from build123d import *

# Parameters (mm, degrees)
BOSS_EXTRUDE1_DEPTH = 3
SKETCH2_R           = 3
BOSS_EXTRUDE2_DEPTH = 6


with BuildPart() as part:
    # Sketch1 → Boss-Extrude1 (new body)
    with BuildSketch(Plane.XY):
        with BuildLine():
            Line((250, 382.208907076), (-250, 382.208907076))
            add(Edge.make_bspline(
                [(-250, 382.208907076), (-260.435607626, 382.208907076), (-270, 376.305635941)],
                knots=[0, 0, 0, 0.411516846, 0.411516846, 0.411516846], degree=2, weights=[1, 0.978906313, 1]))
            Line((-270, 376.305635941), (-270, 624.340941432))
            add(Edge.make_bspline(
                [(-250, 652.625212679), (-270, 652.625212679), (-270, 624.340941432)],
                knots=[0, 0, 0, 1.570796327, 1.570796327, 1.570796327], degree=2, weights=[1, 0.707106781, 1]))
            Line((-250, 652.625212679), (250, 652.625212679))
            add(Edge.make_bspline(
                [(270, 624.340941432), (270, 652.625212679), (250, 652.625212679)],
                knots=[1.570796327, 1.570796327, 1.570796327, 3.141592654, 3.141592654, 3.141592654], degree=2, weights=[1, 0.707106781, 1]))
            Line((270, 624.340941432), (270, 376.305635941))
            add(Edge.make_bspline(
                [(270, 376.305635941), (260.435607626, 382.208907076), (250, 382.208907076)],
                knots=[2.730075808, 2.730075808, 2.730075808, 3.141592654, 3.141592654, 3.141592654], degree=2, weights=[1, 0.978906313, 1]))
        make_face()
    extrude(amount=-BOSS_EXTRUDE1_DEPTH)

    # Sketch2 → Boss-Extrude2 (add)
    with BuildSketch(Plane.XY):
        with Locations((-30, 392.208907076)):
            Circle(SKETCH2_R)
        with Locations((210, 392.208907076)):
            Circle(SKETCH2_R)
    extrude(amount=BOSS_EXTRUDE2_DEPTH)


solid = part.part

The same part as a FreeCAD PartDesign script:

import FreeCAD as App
import Part
import Sketcher
from FreeCAD import Vector

doc = App.newDocument("Part")
body = doc.addObject("PartDesign::Body", "Body")

# Sketch on XY plane
sketch1 = body.newObject("Sketcher::SketchObject", "Sketch")
sketch1.AttachmentSupport = (doc.getObject("XY_Plane"), [""])
sketch1.MapMode = "FlatFace"
sketch1.addGeometry(Part.LineSegment(Vector(-250, 382.208907, 0), Vector(250, 382.208907, 0)), False)
sketch1.addGeometry(Part.BSplineCurve([Vector(270, 376.305636, 0), Vector(260.435608, 382.208907, 0), Vector(250, 382.208907, 0)], [3, 3], [2.730075808, 3.141592654], False, 2, [1, 0.978906313, 1], False), False)
sketch1.addGeometry(Part.LineSegment(Vector(270, 376.305636, 0), Vector(270, 624.340941, 0)), False)
sketch1.addGeometry(Part.BSplineCurve([Vector(270, 624.340941, 0), Vector(270, 652.625213, 0), Vector(250, 652.625213, 0)], [3, 3], [1.570796327, 3.141592654], False, 2, [1, 0.707106781, 1], False), False)
sketch1.addGeometry(Part.LineSegment(Vector(250, 652.625213, 0), Vector(-250, 652.625213, 0)), False)
sketch1.addGeometry(Part.BSplineCurve([Vector(-250, 652.625213, 0), Vector(-270, 652.625213, 0), Vector(-270, 624.340941, 0)], [3, 3], [0, 1.570796327], False, 2, [1, 0.707106781, 1], False), False)
sketch1.addGeometry(Part.LineSegment(Vector(-270, 624.340941, 0), Vector(-270, 376.305636, 0)), False)
sketch1.addGeometry(Part.BSplineCurve([Vector(-250, 382.208907, 0), Vector(-260.435608, 382.208907, 0), Vector(-270, 376.305636, 0)], [3, 3], [0, 0.411516846], False, 2, [1, 0.978906313, 1], False), False)
sketch1.addConstraint(Sketcher.Constraint("Block", 1))
sketch1.addConstraint(Sketcher.Constraint("Block", 3))
sketch1.addConstraint(Sketcher.Constraint("Block", 5))
sketch1.addConstraint(Sketcher.Constraint("Block", 7))
sketch1.addConstraint(Sketcher.Constraint("Coincident", 0, 2, 1, 2))
sketch1.addConstraint(Sketcher.Constraint("Coincident", 1, 1, 2, 1))
sketch1.addConstraint(Sketcher.Constraint("Coincident", 2, 2, 3, 1))
sketch1.addConstraint(Sketcher.Constraint("Coincident", 3, 2, 4, 1))
sketch1.addConstraint(Sketcher.Constraint("Coincident", 4, 2, 5, 1))
sketch1.addConstraint(Sketcher.Constraint("Coincident", 5, 2, 6, 1))
sketch1.addConstraint(Sketcher.Constraint("Coincident", 6, 2, 7, 2))
sketch1.addConstraint(Sketcher.Constraint("Coincident", 7, 1, 0, 1))
pad1 = body.newObject("PartDesign::Pad", "Pad")
pad1.Profile = sketch1
pad1.Length = 3
pad1.Reversed = True

# Sketch on XY plane
sketch2 = body.newObject("Sketcher::SketchObject", "Sketch001")
sketch2.AttachmentSupport = (doc.getObject("XY_Plane"), [""])
sketch2.MapMode = "FlatFace"
sketch2.addGeometry(Part.Circle(Vector(-30, 392.208907, 0), Vector(0, 0, 1), 3), False)
sketch2.addGeometry(Part.Circle(Vector(210, 392.208907, 0), Vector(0, 0, 1), 3), False)
sketch2.addConstraint(Sketcher.Constraint("Equal", 0, 1))
sketch2.addConstraint(Sketcher.Constraint("Horizontal", 0, 3, 1, 3))
sketch2.addConstraint(Sketcher.Constraint("Diameter", 0, 6.0))
sketch2.addConstraint(Sketcher.Constraint("DistanceX", 0, 3, -1, 1, 30.0))
sketch2.addConstraint(Sketcher.Constraint("DistanceX", -1, 1, 1, 3, 210.0))
sketch2.addConstraint(Sketcher.Constraint("DistanceY", -1, 1, 0, 3, 392.208907))
pad2 = body.newObject("PartDesign::Pad", "Pad001")
pad2.Profile = sketch2
pad2.Length = 6

doc.recompute()
